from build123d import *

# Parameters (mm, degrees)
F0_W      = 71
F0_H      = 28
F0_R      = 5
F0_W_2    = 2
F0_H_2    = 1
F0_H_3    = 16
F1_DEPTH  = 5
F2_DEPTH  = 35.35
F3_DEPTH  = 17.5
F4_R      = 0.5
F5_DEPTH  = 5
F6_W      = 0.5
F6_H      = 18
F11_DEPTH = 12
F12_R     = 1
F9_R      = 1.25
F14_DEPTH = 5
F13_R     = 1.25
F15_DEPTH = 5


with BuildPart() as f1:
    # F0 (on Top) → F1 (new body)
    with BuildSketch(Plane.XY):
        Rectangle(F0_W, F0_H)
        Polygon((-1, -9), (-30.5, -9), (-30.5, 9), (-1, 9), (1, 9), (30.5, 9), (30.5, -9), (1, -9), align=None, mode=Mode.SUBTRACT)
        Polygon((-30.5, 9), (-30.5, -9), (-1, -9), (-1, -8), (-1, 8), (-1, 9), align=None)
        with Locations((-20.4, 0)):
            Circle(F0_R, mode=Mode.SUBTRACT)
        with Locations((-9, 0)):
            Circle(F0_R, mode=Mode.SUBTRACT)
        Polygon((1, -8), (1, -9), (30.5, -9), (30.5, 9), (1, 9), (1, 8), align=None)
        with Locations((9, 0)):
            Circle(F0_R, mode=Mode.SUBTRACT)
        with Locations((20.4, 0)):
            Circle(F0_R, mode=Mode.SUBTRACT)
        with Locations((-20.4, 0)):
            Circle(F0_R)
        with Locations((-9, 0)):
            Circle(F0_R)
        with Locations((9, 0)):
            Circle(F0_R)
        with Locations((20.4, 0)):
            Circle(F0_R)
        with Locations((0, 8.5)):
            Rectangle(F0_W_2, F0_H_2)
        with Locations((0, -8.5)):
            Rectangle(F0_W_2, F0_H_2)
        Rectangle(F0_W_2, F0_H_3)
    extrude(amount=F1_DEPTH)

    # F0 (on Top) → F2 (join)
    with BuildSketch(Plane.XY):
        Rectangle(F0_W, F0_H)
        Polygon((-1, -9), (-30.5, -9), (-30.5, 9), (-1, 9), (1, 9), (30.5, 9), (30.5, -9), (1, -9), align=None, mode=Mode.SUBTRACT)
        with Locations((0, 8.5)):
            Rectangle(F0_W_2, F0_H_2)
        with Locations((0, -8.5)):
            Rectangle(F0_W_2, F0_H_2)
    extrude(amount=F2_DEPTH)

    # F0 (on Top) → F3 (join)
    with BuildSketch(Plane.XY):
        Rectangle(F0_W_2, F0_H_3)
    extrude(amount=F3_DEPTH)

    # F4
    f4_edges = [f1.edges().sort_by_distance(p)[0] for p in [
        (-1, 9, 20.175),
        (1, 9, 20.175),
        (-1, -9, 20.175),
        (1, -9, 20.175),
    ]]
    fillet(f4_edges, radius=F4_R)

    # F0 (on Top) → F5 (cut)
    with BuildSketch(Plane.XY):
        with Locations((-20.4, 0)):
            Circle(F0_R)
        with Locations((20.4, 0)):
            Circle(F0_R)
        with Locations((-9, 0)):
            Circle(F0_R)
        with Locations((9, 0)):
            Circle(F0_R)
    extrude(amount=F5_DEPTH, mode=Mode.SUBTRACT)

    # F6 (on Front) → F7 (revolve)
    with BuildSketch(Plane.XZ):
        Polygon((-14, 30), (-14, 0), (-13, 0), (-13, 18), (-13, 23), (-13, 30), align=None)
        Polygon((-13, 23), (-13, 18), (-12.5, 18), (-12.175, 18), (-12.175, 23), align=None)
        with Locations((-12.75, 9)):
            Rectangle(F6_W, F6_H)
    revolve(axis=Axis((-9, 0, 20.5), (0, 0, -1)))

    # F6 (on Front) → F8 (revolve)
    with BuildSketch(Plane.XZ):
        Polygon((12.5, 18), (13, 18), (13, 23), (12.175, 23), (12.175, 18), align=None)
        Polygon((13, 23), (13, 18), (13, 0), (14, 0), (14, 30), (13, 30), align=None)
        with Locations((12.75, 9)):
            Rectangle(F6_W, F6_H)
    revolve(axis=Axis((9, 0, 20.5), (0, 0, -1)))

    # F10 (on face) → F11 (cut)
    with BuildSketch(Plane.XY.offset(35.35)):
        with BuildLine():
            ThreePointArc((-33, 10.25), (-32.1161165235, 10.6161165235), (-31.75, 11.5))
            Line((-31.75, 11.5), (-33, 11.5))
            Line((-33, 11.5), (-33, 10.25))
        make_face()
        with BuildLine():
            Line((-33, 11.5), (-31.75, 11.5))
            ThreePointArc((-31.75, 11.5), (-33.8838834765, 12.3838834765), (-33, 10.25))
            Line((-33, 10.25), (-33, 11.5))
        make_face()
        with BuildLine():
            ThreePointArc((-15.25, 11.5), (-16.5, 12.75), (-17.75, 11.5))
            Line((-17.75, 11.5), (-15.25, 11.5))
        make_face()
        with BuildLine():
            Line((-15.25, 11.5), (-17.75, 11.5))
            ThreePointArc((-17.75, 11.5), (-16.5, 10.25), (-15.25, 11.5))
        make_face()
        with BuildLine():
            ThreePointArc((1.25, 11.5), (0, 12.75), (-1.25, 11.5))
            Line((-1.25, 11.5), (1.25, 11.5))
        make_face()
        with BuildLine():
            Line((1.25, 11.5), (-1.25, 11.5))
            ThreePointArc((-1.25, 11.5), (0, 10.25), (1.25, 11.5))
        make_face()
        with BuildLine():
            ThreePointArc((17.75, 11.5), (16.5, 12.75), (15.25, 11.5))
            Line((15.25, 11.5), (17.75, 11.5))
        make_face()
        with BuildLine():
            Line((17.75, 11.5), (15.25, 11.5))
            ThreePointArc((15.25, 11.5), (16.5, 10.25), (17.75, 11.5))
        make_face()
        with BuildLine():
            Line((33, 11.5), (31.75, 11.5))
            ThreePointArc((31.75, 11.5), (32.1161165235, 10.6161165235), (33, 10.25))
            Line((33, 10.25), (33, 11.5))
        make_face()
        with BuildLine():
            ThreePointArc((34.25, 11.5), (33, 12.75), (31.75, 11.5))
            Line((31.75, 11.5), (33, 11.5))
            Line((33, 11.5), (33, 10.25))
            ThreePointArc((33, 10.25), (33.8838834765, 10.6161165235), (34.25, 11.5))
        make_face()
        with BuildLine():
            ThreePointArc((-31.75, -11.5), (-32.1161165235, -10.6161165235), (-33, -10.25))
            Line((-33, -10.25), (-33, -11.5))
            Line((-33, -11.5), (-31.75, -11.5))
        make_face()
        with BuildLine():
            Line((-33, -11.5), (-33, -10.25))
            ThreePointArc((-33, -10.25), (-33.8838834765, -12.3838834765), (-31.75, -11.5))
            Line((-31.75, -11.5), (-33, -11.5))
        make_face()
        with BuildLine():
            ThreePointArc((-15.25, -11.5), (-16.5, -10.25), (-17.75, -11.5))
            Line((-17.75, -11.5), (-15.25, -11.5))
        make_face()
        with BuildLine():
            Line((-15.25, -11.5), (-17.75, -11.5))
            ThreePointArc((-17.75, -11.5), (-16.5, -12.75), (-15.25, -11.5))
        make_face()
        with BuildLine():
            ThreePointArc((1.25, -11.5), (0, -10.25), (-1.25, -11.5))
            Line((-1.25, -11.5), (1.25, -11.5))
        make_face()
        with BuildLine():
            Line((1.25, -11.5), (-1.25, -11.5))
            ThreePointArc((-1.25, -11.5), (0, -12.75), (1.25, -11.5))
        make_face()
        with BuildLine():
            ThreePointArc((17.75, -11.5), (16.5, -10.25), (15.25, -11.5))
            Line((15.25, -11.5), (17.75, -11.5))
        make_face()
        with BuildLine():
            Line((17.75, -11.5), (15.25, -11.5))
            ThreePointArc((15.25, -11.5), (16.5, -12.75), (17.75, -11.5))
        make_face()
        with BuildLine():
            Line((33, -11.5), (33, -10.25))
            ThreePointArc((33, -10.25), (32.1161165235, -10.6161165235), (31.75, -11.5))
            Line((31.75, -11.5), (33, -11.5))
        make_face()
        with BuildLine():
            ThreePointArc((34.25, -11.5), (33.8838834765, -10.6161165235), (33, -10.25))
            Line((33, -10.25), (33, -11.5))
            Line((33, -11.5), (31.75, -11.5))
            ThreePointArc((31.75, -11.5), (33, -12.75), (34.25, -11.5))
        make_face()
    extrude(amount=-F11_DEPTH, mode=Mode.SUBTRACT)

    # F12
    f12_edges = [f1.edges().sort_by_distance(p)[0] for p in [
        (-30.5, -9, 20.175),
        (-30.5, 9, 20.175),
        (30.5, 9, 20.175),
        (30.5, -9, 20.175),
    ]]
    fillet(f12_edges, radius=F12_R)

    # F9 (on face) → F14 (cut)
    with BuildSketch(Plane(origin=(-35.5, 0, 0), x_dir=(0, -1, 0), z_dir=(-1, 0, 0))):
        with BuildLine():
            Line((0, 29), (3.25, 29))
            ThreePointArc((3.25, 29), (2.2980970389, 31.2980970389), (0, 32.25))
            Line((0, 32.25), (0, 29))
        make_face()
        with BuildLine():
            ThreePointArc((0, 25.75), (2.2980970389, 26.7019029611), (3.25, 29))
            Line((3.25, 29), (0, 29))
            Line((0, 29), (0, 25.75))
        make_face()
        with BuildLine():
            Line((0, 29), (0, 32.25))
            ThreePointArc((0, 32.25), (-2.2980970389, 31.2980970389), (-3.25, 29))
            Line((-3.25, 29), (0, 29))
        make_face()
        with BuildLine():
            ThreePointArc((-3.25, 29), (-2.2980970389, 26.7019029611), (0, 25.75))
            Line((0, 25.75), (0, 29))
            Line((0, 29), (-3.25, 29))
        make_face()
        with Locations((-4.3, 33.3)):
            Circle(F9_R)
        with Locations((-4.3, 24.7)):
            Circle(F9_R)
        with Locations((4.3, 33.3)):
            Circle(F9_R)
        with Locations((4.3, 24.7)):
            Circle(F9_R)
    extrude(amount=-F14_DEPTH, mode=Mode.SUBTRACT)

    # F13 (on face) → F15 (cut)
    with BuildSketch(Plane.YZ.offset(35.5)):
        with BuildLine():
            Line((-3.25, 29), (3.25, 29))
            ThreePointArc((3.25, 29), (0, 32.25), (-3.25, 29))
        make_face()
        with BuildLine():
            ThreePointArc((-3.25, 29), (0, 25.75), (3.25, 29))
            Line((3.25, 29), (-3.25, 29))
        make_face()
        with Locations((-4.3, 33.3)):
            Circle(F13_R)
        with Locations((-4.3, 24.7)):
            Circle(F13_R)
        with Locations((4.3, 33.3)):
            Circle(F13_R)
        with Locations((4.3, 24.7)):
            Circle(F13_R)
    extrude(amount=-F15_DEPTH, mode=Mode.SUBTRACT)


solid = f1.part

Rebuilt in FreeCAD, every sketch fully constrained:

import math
import FreeCAD as App
import Part
import Sketcher


def edges_at(feature, points):
    """Names of the edges that pass closest to the given points."""
    edges = feature.Shape.Edges
    near = lambda p: min(range(len(edges)), key=lambda i: edges[i].distToShape(Part.Vertex(*p))[0])
    return sorted({f"Edge{near(p) + 1}" for p in points})


def add_polygon(sketch, points):
    """Adds a closed chain of lines whose ends are joined by coincident constraints."""
    first, n = sketch.GeometryCount, len(points)
    for a, b in zip(points, points[1:] + points[:1]):
        sketch.addGeometry(Part.LineSegment(App.Vector(*a, 0), App.Vector(*b, 0)), False)
    for i in range(n):
        sketch.addConstraint(Sketcher.Constraint("Coincident", first + i, 2, first + (i + 1) % n, 1))

doc = App.newDocument("Part")
body = doc.addObject("PartDesign::Body", "Body")

sketch1 = doc.addObject("Sketcher::SketchObject", "Sketch")
body.addObject(sketch1)
sketch1.AttachmentSupport = (doc.XY_Plane, [""])
sketch1.MapMode = "FlatFace"
add_polygon(sketch1, [(-36, 14), (-36, -14), (36, -14), (36, 14)])
sketch1.addConstraint([
    Sketcher.Constraint("Vertical", 0),
    Sketcher.Constraint("Horizontal", 1),
    Sketcher.Constraint("Vertical", 2),
    Sketcher.Constraint("Horizontal", 3),
    Sketcher.Constraint("Symmetric", 0, 2, 2, 2, -1, 1),
    Sketcher.Constraint("DistanceX", 1, 1, 1, 2, 71.0),
    Sketcher.Constraint("DistanceY", 0, 2, 0, 1, 28.0),
])
pad1 = doc.addObject("PartDesign::Pad", "Pad")
body.addObject(pad1)
pad1.Profile = sketch1
pad1.Length = 5

sketch2 = doc.addObject("Sketcher::SketchObject", "Sketch001")
body.addObject(sketch2)
sketch2.AttachmentSupport = (doc.XY_Plane, [""])
sketch2.MapMode = "FlatFace"
add_polygon(sketch2, [(-35.5, 14), (-35.5, -14), (35.5, -14), (35.5, 14)])
add_polygon(sketch2, [(30.5, 9), (30.5, -9), (1, -9), (1, -8), (-1, -8), (-1, -9), (-30.5, -9), (-30.5, 9), (-1, 9), (-1, 8), (1, 8), (1, 9)])
sketch2.addConstraint([
    Sketcher.Constraint("Vertical", 0),
    Sketcher.Constraint("Horizontal", 1),
    Sketcher.Constraint("Vertical", 2),
    Sketcher.Constraint("Horizontal", 3),
    Sketcher.Constraint("Vertical", 4),
    Sketcher.Constraint("Horizontal", 5),
    Sketcher.Constraint("Vertical", 6),
    Sketcher.Constraint("Horizontal", 7),
    Sketcher.Constraint("Vertical", 8),
    Sketcher.Constraint("Horizontal", 9),
    Sketcher.Constraint("Vertical", 10),
    Sketcher.Constraint("Horizontal", 11),
    Sketcher.Constraint("Vertical", 12),
    Sketcher.Constraint("Horizontal", 13),
    Sketcher.Constraint("Vertical", 14),
    Sketcher.Constraint("Horizontal", 15),
    Sketcher.Constraint("Symmetric", 0, 2, 2, 2, -1, 1),
    Sketcher.Constraint("Symmetric", 4, 2, 10, 2, -1, 1),
    Sketcher.Constraint("Symmetric", 6, 2, 12, 2, -1, 1),
    Sketcher.Constraint("Symmetric", 8, 2, 14, 2, -1, 1),
    Sketcher.Constraint("Symmetric", 5, 2, 8, 2, -2),
    Sketcher.Constraint("DistanceX", 1, 1, 1, 2, 71.0),
    Sketcher.Constraint("DistanceX", 7, 2, 7, 1, 2.0),
    Sketcher.Constraint("DistanceY", 0, 2, 0, 1, 28.0),
    Sketcher.Constraint("DistanceY", 4, 2, 4, 1, 18.0),
    Sketcher.Constraint("DistanceY", 6, 1, 6, 2, 1.0),
    Sketcher.Constraint("DistanceX", 5, 2, 5, 1, 29.5),
])
pad2 = doc.addObject("PartDesign::Pad", "Pad001")
body.addObject(pad2)
pad2.Profile = sketch2
pad2.Length = 35.35

sketch3 = doc.addObject("Sketcher::SketchObject", "Sketch002")
body.addObject(sketch3)
sketch3.AttachmentSupport = (doc.XY_Plane, [""])
sketch3.MapMode = "FlatFace"
add_polygon(sketch3, [(-1, 8), (-1, -8), (1, -8), (1, 8)])
sketch3.addConstraint([
    Sketcher.Constraint("Vertical", 0),
    Sketcher.Constraint("Horizontal", 1),
    Sketcher.Constraint("Vertical", 2),
    Sketcher.Constraint("Horizontal", 3),
    Sketcher.Constraint("Symmetric", 0, 2, 2, 2, -1, 1),
    Sketcher.Constraint("DistanceX", 1, 1, 1, 2, 2.0),
    Sketcher.Constraint("DistanceY", 0, 2, 0, 1, 16.0),
])
pad3 = doc.addObject("PartDesign::Pad", "Pad002")
body.addObject(pad3)
pad3.Profile = sketch3
pad3.Length = 17.5
doc.recompute()

fillet = doc.addObject("PartDesign::Fillet", "Fillet")
body.addObject(fillet)
fillet.Base = (pad3, edges_at(pad3, [
    (-1, 9, 20.175),
    (1, 9, 20.175),
    (-1, -9, 20.175),
    (1, -9, 20.175),
]))
fillet.Radius = 0.5

sketch4 = doc.addObject("Sketcher::SketchObject", "Sketch003")
body.addObject(sketch4)
sketch4.AttachmentSupport = (doc.XY_Plane, [""])
sketch4.MapMode = "FlatFace"
sketch4.addGeometry([
    Part.Circle(App.Vector(-20, 0, 0), App.Vector(0, 0, 1), 5),
    Part.Circle(App.Vector(20, 0, 0), App.Vector(0, 0, 1), 5),
    Part.Circle(App.Vector(-9, 0, 0), App.Vector(0, 0, 1), 5),
    Part.Circle(App.Vector(9, 0, 0), App.Vector(0, 0, 1), 5),
], False)
sketch4.addConstraint([
    Sketcher.Constraint("Equal", 0, 1),
    Sketcher.Constraint("Equal", 1, 2),
    Sketcher.Constraint("Equal", 2, 3),
    Sketcher.Constraint("Symmetric", 0, 3, 1, 3, -1, 1),
    Sketcher.Constraint("Symmetric", 2, 3, 3, 3, -1, 1),
    Sketcher.Constraint("PointOnObject", 0, 3, -1),
    Sketcher.Constraint("PointOnObject", 2, 3, -1),
    Sketcher.Constraint("Diameter", 0, 10.0),
    Sketcher.Constraint("DistanceX", 2, 3, -1, 1, 9.0),
    Sketcher.Constraint("DistanceX", 0, 3, -1, 1, 20.4),
])
pocket1 = doc.addObject("PartDesign::Pocket", "Pocket")
body.addObject(pocket1)
pocket1.Profile = sketch4
pocket1.Length = 5
pocket1.Reversed = True

sketch5 = doc.addObject("Sketcher::SketchObject", "Sketch004")
body.addObject(sketch5)
sketch5.AttachmentSupport = (doc.XZ_Plane, [""])
sketch5.MapMode = "FlatFace"
add_polygon(sketch5, [(-14, 30), (-14, 0), (-12.5, 0), (-12.5, 18), (-12.18, 18), (-12.18, 23), (-13, 23), (-13, 30)])
sketch5.addGeometry(Part.LineSegment(App.Vector(-9, 30, 0), App.Vector(-9, 0, 0)), True)
sketch5.addConstraint([
    Sketcher.Constraint("Vertical", 0),
    Sketcher.Constraint("Horizontal", 1),
    Sketcher.Constraint("Vertical", 2),
    Sketcher.Constraint("Horizontal", 3),
    Sketcher.Constraint("Vertical", 4),
    Sketcher.Constraint("Horizontal", 5),
    Sketcher.Constraint("Vertical", 6),
    Sketcher.Constraint("Horizontal", 7),
    Sketcher.Constraint("Vertical", 8),
    Sketcher.Constraint("PointOnObject", 0, 2, -1),
    Sketcher.Constraint("PointOnObject", 8, 2, -1),
    Sketcher.Constraint("Horizontal", 7, 2, 8, 1),
    Sketcher.Constraint("DistanceX", 7, 2, 7, 1, 1.0),
    Sketcher.Constraint("DistanceY", 0, 2, 0, 1, 30.0),
    Sketcher.Constraint("DistanceY", 2, 1, 2, 2, 18.0),
    Sketcher.Constraint("DistanceY", 4, 1, 4, 2, 5.0),
    Sketcher.Constraint("DistanceX", 1, 1, 1, 2, 1.5),
    Sketcher.Constraint("DistanceX", 0, 2, -1, 1, 14.0),
    Sketcher.Constraint("DistanceX", 8, 1, -1, 1, 9.0),
    Sketcher.Constraint("DistanceX", 3, 1, 3, 2, 0.325),
])
revolution = doc.addObject("PartDesign::Revolution", "Revolution")
body.addObject(revolution)
revolution.Profile = sketch5
revolution.ReferenceAxis = (sketch5, ["Axis0"])
revolution.Angle = 360

sketch6 = doc.addObject("Sketcher::SketchObject", "Sketch005")
body.addObject(sketch6)
sketch6.AttachmentSupport = (doc.XZ_Plane, [""])
sketch6.MapMode = "FlatFace"
add_polygon(sketch6, [(13, 23), (12.18, 23), (12.18, 18), (12.5, 18), (12.5, 0), (14, 0), (14, 30), (13, 30)])
sketch6.addGeometry(Part.LineSegment(App.Vector(9, 30, 0), App.Vector(9, 0, 0)), True)
sketch6.addConstraint([
    Sketcher.Constraint("Horizontal", 0),
    Sketcher.Constraint("Vertical", 1),
    Sketcher.Constraint("Horizontal", 2),
    Sketcher.Constraint("Vertical", 3),
    Sketcher.Constraint("Horizontal", 4),
    Sketcher.Constraint("Vertical", 5),
    Sketcher.Constraint("Horizontal", 6),
    Sketcher.Constraint("Vertical", 7),
    Sketcher.Constraint("Vertical", 8),
    Sketcher.Constraint("PointOnObject", 3, 2, -1),
    Sketcher.Constraint("PointOnObject", 8, 2, -1),
    Sketcher.Constraint("Horizontal", 6, 2, 8, 1),
    Sketcher.Constraint("DistanceX", 6, 2, 6, 1, 1.0),
    Sketcher.Constraint("DistanceY", 1, 2, 1, 1, 5.0),
    Sketcher.Constraint("DistanceY", 3, 2, 3, 1, 18.0),
    Sketcher.Constraint("DistanceY", 5, 1, 5, 2, 30.0),
    Sketcher.Constraint("DistanceX", 4, 1, 4, 2, 1.5),
    Sketcher.Constraint("DistanceX", -1, 1, 4, 2, 14.0),
    Sketcher.Constraint("DistanceX", -1, 1, 8, 1, 9.0),
    Sketcher.Constraint("DistanceX", 0, 2, 0, 1, 0.825),
])
revolution2 = doc.addObject("PartDesign::Revolution", "Revolution001")
body.addObject(revolution2)
revolution2.Profile = sketch6
revolution2.ReferenceAxis = (sketch6, ["Axis0"])
revolution2.Angle = 360

sketch7 = doc.addObject("Sketcher::SketchObject", "Sketch006")
body.addObject(sketch7)
sketch7.AttachmentSupport = (doc.XY_Plane, [""])
sketch7.MapMode = "FlatFace"
sketch7.AttachmentOffset = App.Placement(App.Vector(0, 0, 35.35), App.Rotation())
sketch7.addGeometry([
    Part.ArcOfCircle(Part.Circle(App.Vector(-33, 11.5, 0), App.Vector(0, 0, 1), 1.2), math.radians(-90), math.radians(0)),
    Part.ArcOfCircle(Part.Circle(App.Vector(-33, 11.5, 0), App.Vector(0, 0, 1), 1.2), math.radians(0), math.radians(270)),
    Part.Circle(App.Vector(-16.5, 11.5, 0), App.Vector(0, 0, 1), 1.2),
    Part.Circle(App.Vector(0, 11.5, 0), App.Vector(0, 0, 1), 1.2),
    Part.Circle(App.Vector(16.5, 11.5, 0), App.Vector(0, 0, 1), 1.2),
    Part.ArcOfCircle(Part.Circle(App.Vector(33, 11.5, 0), App.Vector(0, 0, 1), 1.2), math.radians(180), math.radians(270)),
    Part.ArcOfCircle(Part.Circle(App.Vector(33, 11.5, 0), App.Vector(0, 0, 1), 1.2), math.radians(-90), math.radians(0)),
    Part.ArcOfCircle(Part.Circle(App.Vector(33, 11.5, 0), App.Vector(0, 0, 1), 1.2), math.radians(0), math.radians(180)),
    Part.ArcOfCircle(Part.Circle(App.Vector(-33, -11.5, 0), App.Vector(0, 0, 1), 1.2), math.radians(0), math.radians(90)),
    Part.ArcOfCircle(Part.Circle(App.Vector(-33, -11.5, 0), App.Vector(0, 0, 1), 1.2), math.radians(90), math.radians(360)),
    Part.Circle(App.Vector(-16.5, -11.5, 0), App.Vector(0, 0, 1), 1.2),
    Part.Circle(App.Vector(0, -11.5, 0), App.Vector(0, 0, 1), 1.2),
    Part.Circle(App.Vector(16.5, -11.5, 0), App.Vector(0, 0, 1), 1.2),
    Part.ArcOfCircle(Part.Circle(App.Vector(33, -11.5, 0), App.Vector(0, 0, 1), 1.2), math.radians(90), math.radians(180)),
    Part.ArcOfCircle(Part.Circle(App.Vector(33, -11.5, 0), App.Vector(0, 0, 1), 1.2), math.radians(180), math.radians(360)),
    Part.ArcOfCircle(Part.Circle(App.Vector(33, -11.5, 0), App.Vector(0, 0, 1), 1.2), math.radians(0), math.radians(90)),
], False)
sketch7.addConstraint([
    Sketcher.Constraint("Tangent", 0, 1, 1, 2),
    Sketcher.Constraint("Coincident", 1, 1, 0, 2),
    Sketcher.Constraint("Tangent", 5, 2, 6, 1),
    Sketcher.Constraint("Tangent", 6, 2, 7, 1),
    Sketcher.Constraint("Tangent", 7, 2, 5, 1),
    Sketcher.Constraint("Tangent", 8, 1, 9, 2),
    Sketcher.Constraint("Coincident", 9, 1, 8, 2),
    Sketcher.Constraint("Tangent", 13, 2, 14, 1),
    Sketcher.Constraint("Tangent", 14, 2, 15, 1),
    Sketcher.Constraint("Tangent", 15, 2, 13, 1),
    Sketcher.Constraint("Equal", 1, 2),
    Sketcher.Constraint("Equal", 2, 3),
    Sketcher.Constraint("Equal", 3, 4),
    Sketcher.Constraint("Equal", 4, 5),
    Sketcher.Constraint("Equal", 7, 8),
    Sketcher.Constraint("Equal", 9, 10),
    Sketcher.Constraint("Equal", 10, 11),
    Sketcher.Constraint("Equal", 11, 12),
    Sketcher.Constraint("Equal", 12, 13),
    Sketcher.Constraint("Symmetric", 5, 3, 8, 3, -1, 1),
    Sketcher.Constraint("Symmetric", 4, 3, 10, 3, -1, 1),
    Sketcher.Constraint("Symmetric", 3, 3, 11, 3, -1, 1),
    Sketcher.Constraint("Symmetric", 2, 3, 12, 3, -1, 1),
    Sketcher.Constraint("Symmetric", 0, 3, 13, 3, -1, 1),
    Sketcher.Constraint("Symmetric", 2, 3, 4, 3, -2),
    Sketcher.Constraint("Symmetric", 0, 3, 5, 3, -2),
    Sketcher.Constraint("PointOnObject", 3, 3, -2),
    Sketcher.Constraint("Horizontal", 1, 3, 2, 3),
    Sketcher.Constraint("Horizontal", 2, 3, 3, 3),
    Sketcher.Constraint("Horizontal", 7, 3, 1, 1),
    Sketcher.Constraint("Horizontal", 1, 1, 6, 2),
    Sketcher.Constraint("Horizontal", 6, 2, 7, 2),
    Sketcher.Constraint("Horizontal", 15, 3, 8, 1),
    Sketcher.Constraint("Horizontal", 8, 1, 13, 2),
    Sketcher.Constraint("Horizontal", 13, 2, 14, 2),
    Sketcher.Constraint("Vertical", 9, 3, 0, 1),
    Sketcher.Constraint("Vertical", 15, 3, 5, 2),
    Sketcher.Constraint("Vertical", 0, 1, 9, 1),
    Sketcher.Constraint("Vertical", 5, 2, 15, 2),
    Sketcher.Constraint("Diameter", 2, 2.5),
    Sketcher.Constraint("DistanceX", 0, 3, -1, 1, 33.0),
    Sketcher.Constraint("DistanceX", 2, 3, 4, 3, 33.0),
    Sketcher.Constraint("DistanceY", 8, 3, 0, 3, 23.0),
])
pocket2 = doc.addObject("PartDesign::Pocket", "Pocket001")
body.addObject(pocket2)
pocket2.Profile = sketch7
pocket2.Length = 12
doc.recompute()

fillet2 = doc.addObject("PartDesign::Fillet", "Fillet001")
body.addObject(fillet2)
fillet2.Base = (pocket2, edges_at(pocket2, [
    (-30.5, -9, 20.175),
    (-30.5, 9, 20.175),
    (30.5, 9, 20.175),
    (30.5, -9, 20.175),
]))
fillet2.Radius = 1

sketch8 = doc.addObject("Sketcher::SketchObject", "Sketch007")
body.addObject(sketch8)
sketch8.AttachmentSupport = (doc.YZ_Plane, [""])
sketch8.MapMode = "FlatFace"
sketch8.AttachmentOffset = App.Placement(App.Vector(0, 0, -35.5), App.Rotation())
sketch8.addGeometry([
    Part.ArcOfCircle(Part.Circle(App.Vector(0, 29, 0), App.Vector(0, 0, 1), 3.2), math.radians(90), math.radians(180)),
    Part.ArcOfCircle(Part.Circle(App.Vector(0, 29, 0), App.Vector(0, 0, 1), 3.2), math.radians(0), math.radians(90)),
    Part.ArcOfCircle(Part.Circle(App.Vector(0, 29, 0), App.Vector(0, 0, 1), 3.2), math.radians(-90), math.radians(0)),
    Part.ArcOfCircle(Part.Circle(App.Vector(0, 29, 0), App.Vector(0, 0, 1), 3.2), math.radians(180), math.radians(270)),
    Part.Circle(App.Vector(4.3, 33.3, 0), App.Vector(0, 0, 1), 1.2),
    Part.Circle(App.Vector(4.3, 24.7, 0), App.Vector(0, 0, 1), 1.2),
    Part.Circle(App.Vector(-4.3, 33.3, 0), App.Vector(0, 0, 1), 1.2),
    Part.Circle(App.Vector(-4.3, 24.7, 0), App.Vector(0, 0, 1), 1.2),
], False)
sketch8.addConstraint([
    Sketcher.Constraint("Tangent", 0, 1, 1, 2),
    Sketcher.Constraint("Tangent", 1, 1, 2, 2),
    Sketcher.Constraint("Tangent", 2, 1, 3, 2),
    Sketcher.Constraint("Tangent", 3, 1, 0, 2),
    Sketcher.Constraint("Equal", 0, 1),
    Sketcher.Constraint("Equal", 4, 5),
    Sketcher.Constraint("Equal", 5, 6),
    Sketcher.Constraint("Equal", 6, 7),
    Sketcher.Constraint("Symmetric", 4, 3, 6, 3, -2),
    Sketcher.Constraint("Symmetric", 5, 3, 7, 3, -2),
    Sketcher.Constraint("Symmetric", 1, 1, 3, 1, -2),
    Sketcher.Constraint("PointOnObject", 0, 1, -2),
    Sketcher.Constraint("PointOnObject", 2, 1, -2),
    Sketcher.Constraint("Horizontal", 3, 3, 1, 1),
    Sketcher.Constraint("Vertical", 4, 3, 5, 3),
    Sketcher.Constraint("Diameter", 4, 2.5),
    Sketcher.Constraint("Radius", 0, 3.25),
    Sketcher.Constraint("DistanceY", -1, 1, 0, 3, 29.0),
    Sketcher.Constraint("DistanceX", -1, 1, 4, 3, 4.3),
    Sketcher.Constraint("DistanceY", -1, 1, 4, 3, 33.3),
    Sketcher.Constraint("DistanceY", -1, 1, 5, 3, 24.7),
])
pocket3 = doc.addObject("PartDesign::Pocket", "Pocket002")
body.addObject(pocket3)
pocket3.Profile = sketch8
pocket3.Length = 5
pocket3.Reversed = True

sketch9 = doc.addObject("Sketcher::SketchObject", "Sketch008")
body.addObject(sketch9)
sketch9.AttachmentSupport = (doc.YZ_Plane, [""])
sketch9.MapMode = "FlatFace"
sketch9.AttachmentOffset = App.Placement(App.Vector(0, 0, 35.5), App.Rotation())
sketch9.addGeometry([
    Part.Circle(App.Vector(0, 29, 0), App.Vector(0, 0, 1), 3.2),
    Part.Circle(App.Vector(-4.3, 33.3, 0), App.Vector(0, 0, 1), 1.2),
    Part.Circle(App.Vector(-4.3, 24.7, 0), App.Vector(0, 0, 1), 1.2),
    Part.Circle(App.Vector(4.3, 33.3, 0), App.Vector(0, 0, 1), 1.2),
    Part.Circle(App.Vector(4.3, 24.7, 0), App.Vector(0, 0, 1), 1.2),
], False)
sketch9.addConstraint([
    Sketcher.Constraint("Equal", 1, 2),
    Sketcher.Constraint("Equal", 2, 3),
    Sketcher.Constraint("Equal", 3, 4),
    Sketcher.Constraint("Symmetric", 1, 3, 3, 3, -2),
    Sketcher.Constraint("Symmetric", 2, 3, 4, 3, -2),
    Sketcher.Constraint("PointOnObject", 0, 3, -2),
    Sketcher.Constraint("Vertical", 1, 3, 2, 3),
    Sketcher.Constraint("Diameter", 0, 6.5),
    Sketcher.Constraint("Diameter", 1, 2.5),
    Sketcher.Constraint("DistanceY", -1, 1, 0, 3, 29.0),
    Sketcher.Constraint("DistanceX", 1, 3, -1, 1, 4.3),
    Sketcher.Constraint("DistanceY", -1, 1, 1, 3, 33.3),
    Sketcher.Constraint("DistanceY", -1, 1, 2, 3, 24.7),
])
pocket4 = doc.addObject("PartDesign::Pocket", "Pocket003")
body.addObject(pocket4)
pocket4.Profile = sketch9
pocket4.Length = 5

doc.recompute()
